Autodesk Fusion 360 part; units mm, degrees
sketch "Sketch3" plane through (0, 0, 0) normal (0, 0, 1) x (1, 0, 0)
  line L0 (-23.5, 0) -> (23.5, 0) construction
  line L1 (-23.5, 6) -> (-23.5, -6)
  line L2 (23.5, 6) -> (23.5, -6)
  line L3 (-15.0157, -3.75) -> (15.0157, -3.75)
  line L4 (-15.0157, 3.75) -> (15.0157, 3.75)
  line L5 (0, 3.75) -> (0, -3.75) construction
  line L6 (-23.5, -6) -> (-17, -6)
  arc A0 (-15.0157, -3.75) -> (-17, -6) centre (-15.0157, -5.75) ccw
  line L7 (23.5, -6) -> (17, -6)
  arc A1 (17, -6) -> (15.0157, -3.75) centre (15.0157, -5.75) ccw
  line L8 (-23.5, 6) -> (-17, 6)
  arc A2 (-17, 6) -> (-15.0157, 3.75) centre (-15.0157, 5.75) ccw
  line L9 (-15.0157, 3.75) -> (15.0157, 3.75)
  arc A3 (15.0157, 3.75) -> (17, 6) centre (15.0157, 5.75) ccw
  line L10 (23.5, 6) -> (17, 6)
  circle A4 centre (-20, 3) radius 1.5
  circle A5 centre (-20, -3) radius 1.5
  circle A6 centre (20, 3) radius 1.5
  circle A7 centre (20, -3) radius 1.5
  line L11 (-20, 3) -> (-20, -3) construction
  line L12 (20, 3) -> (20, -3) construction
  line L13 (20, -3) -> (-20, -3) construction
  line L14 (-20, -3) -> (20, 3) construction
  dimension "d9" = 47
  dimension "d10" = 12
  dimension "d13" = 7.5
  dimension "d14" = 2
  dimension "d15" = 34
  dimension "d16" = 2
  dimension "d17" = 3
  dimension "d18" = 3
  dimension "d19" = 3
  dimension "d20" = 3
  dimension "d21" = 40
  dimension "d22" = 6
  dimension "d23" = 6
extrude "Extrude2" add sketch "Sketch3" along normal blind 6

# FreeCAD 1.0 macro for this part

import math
import FreeCAD as App
import Part
import Sketcher
from FreeCAD import Vector

doc = App.newDocument("Part")
params = doc.addObject("Spreadsheet::Sheet", "Params")
for row, (alias, value) in enumerate([
    ("sketch1_diameter", "3 mm"),
    ("sketch1_radius", "2 mm"),
    ("sketch1_height", "12 mm"),
    ("sketch1_width", "6.5 mm"),
    ("pad1_length", "6 mm"),
], start=1):
    params.set(f"A{row}", alias)
    params.set(f"B{row}", "=" + value)
    params.setAlias(f"B{row}", alias)

body = doc.addObject("PartDesign::Body", "Body")

# Sketch on XY plane
sketch1 = body.newObject("Sketcher::SketchObject", "Sketch")
sketch1.AttachmentSupport = (doc.getObject("XY_Plane"), [""])
sketch1.MapMode = "FlatFace"
sketch1.addGeometry(Part.LineSegment(Vector(-17, 6, 0), Vector(-23.5, 6, 0)), False)
sketch1.addGeometry(Part.LineSegment(Vector(-23.5, 6, 0), Vector(-23.5, -6, 0)), False)
sketch1.addGeometry(Part.LineSegment(Vector(-23.5, -6, 0), Vector(-17, -6, 0)), False)
sketch1.addGeometry(Part.ArcOfCircle(Part.Circle(Vector(-15, -5.8, 0), Vector(0, 0, 1), 2), math.radians(90), math.radians(187)), False)
sketch1.addGeometry(Part.LineSegment(Vector(-15, -3.8, 0), Vector(15, -3.8, 0)), False)
sketch1.addGeometry(Part.ArcOfCircle(Part.Circle(Vector(15, -5.8, 0), Vector(0, 0, 1), 2), math.radians(-7), math.radians(90)), False)
sketch1.addGeometry(Part.LineSegment(Vector(17, -6, 0), Vector(23.5, -6, 0)), False)
sketch1.addGeometry(Part.LineSegment(Vector(23.5, -6, 0), Vector(23.5, 6, 0)), False)
sketch1.addGeometry(Part.LineSegment(Vector(23.5, 6, 0), Vector(17, 6, 0)), False)
sketch1.addGeometry(Part.ArcOfCircle(Part.Circle(Vector(15, 5.8, 0), Vector(0, 0, 1), 2), math.radians(-90), math.radians(7)), False)
sketch1.addGeometry(Part.LineSegment(Vector(15, 3.8, 0), Vector(-15, 3.8, 0)), False)
sketch1.addGeometry(Part.ArcOfCircle(Part.Circle(Vector(-15, 5.8, 0), Vector(0, 0, 1), 2), math.radians(173), math.radians(270)), False)
sketch1.addGeometry(Part.Circle(Vector(-20, -3, 0), Vector(0, 0, 1), 1.5), False)
sketch1.addGeometry(Part.Circle(Vector(20, -3, 0), Vector(0, 0, 1), 1.5), False)
sketch1.addGeometry(Part.Circle(Vector(-20, 3, 0), Vector(0, 0, 1), 1.5), False)
sketch1.addGeometry(Part.Circle(Vector(20, 3, 0), Vector(0, 0, 1), 1.5), False)
sketch1.addConstraint(Sketcher.Constraint("Coincident", 0, 2, 1, 1))
sketch1.addConstraint(Sketcher.Constraint("Coincident", 1, 2, 2, 1))
sketch1.addConstraint(Sketcher.Constraint("Coincident", 2, 2, 3, 2))
sketch1.addConstraint(Sketcher.Constraint("Tangent", 3, 1, 4, 1))
sketch1.addConstraint(Sketcher.Constraint("Tangent", 4, 2, 5, 2))
sketch1.addConstraint(Sketcher.Constraint("Coincident", 5, 1, 6, 1))
sketch1.addConstraint(Sketcher.Constraint("Coincident", 6, 2, 7, 1))
sketch1.addConstraint(Sketcher.Constraint("Coincident", 7, 2, 8, 1))
sketch1.addConstraint(Sketcher.Constraint("Coincident", 8, 2, 9, 2))
sketch1.addConstraint(Sketcher.Constraint("Tangent", 9, 1, 10, 1))
sketch1.addConstraint(Sketcher.Constraint("Tangent", 10, 2, 11, 2))
sketch1.addConstraint(Sketcher.Constraint("Coincident", 11, 1, 0, 1))
sketch1.addConstraint(Sketcher.Constraint("Horizontal", 0))
sketch1.addConstraint(Sketcher.Constraint("Vertical", 1))
sketch1.addConstraint(Sketcher.Constraint("Horizontal", 2))
sketch1.addConstraint(Sketcher.Constraint("Horizontal", 4))
sketch1.addConstraint(Sketcher.Constraint("Horizontal", 6))
sketch1.addConstraint(Sketcher.Constraint("Vertical", 7))
sketch1.addConstraint(Sketcher.Constraint("Horizontal", 8))
sketch1.addConstraint(Sketcher.Constraint("Horizontal", 10))
sketch1.addConstraint(Sketcher.Constraint("Equal", 3, 5))
sketch1.addConstraint(Sketcher.Constraint("Equal", 5, 9))
sketch1.addConstraint(Sketcher.Constraint("Equal", 9, 11))
sketch1.addConstraint(Sketcher.Constraint("Equal", 12, 13))
sketch1.addConstraint(Sketcher.Constraint("Equal", 13, 14))
sketch1.addConstraint(Sketcher.Constraint("Equal", 14, 15))
sketch1.addConstraint(Sketcher.Constraint("Symmetric", 3, 3, 9, 3, -1, 1))
sketch1.addConstraint(Sketcher.Constraint("Symmetric", 13, 3, 14, 3, -1, 1))
sketch1.addConstraint(Sketcher.Constraint("Symmetric", 12, 3, 15, 3, -1, 1))
sketch1.addConstraint(Sketcher.Constraint("Symmetric", 0, 2, 6, 2, -1, 1))
sketch1.addConstraint(Sketcher.Constraint("Symmetric", 12, 3, 13, 3, -2))
sketch1.addConstraint(Sketcher.Constraint("Symmetric", 2, 2, 5, 1, -2))
sketch1.addConstraint(Sketcher.Constraint("Symmetric", 8, 2, 11, 1, -2))
sketch1.addConstraint(Sketcher.Constraint("Diameter", 12, 3.0))
sketch1.addConstraint(Sketcher.Constraint("Radius", 3, 2.0))
sketch1.addConstraint(Sketcher.Constraint("DistanceY", 1, 2, 1, 1, 12.0))
sketch1.addConstraint(Sketcher.Constraint("DistanceY", 12, 3, -1, 1, 3.0))
sketch1.addConstraint(Sketcher.Constraint("DistanceX", 12, 3, 13, 3, 40.0))
sketch1.addConstraint(Sketcher.Constraint("DistanceX", 12, 3, 2, 2, 3.0))
sketch1.addConstraint(Sketcher.Constraint("DistanceY", 4, 2, 9, 1, 7.5))
sketch1.addConstraint(Sketcher.Constraint("DistanceX", 0, 2, 0, 1, 6.5))
sketch1.setExpression("Constraints[33]", "Params.sketch1_diameter")
sketch1.setExpression("Constraints[34]", "Params.sketch1_radius")
sketch1.setExpression("Constraints[35]", "Params.sketch1_height")
sketch1.setExpression("Constraints[40]", "Params.sketch1_width")
pad1 = body.newObject("PartDesign::Pad", "Pad")
pad1.Profile = sketch1
pad1.setExpression("Length", "Params.pad1_length")

doc.recompute()
